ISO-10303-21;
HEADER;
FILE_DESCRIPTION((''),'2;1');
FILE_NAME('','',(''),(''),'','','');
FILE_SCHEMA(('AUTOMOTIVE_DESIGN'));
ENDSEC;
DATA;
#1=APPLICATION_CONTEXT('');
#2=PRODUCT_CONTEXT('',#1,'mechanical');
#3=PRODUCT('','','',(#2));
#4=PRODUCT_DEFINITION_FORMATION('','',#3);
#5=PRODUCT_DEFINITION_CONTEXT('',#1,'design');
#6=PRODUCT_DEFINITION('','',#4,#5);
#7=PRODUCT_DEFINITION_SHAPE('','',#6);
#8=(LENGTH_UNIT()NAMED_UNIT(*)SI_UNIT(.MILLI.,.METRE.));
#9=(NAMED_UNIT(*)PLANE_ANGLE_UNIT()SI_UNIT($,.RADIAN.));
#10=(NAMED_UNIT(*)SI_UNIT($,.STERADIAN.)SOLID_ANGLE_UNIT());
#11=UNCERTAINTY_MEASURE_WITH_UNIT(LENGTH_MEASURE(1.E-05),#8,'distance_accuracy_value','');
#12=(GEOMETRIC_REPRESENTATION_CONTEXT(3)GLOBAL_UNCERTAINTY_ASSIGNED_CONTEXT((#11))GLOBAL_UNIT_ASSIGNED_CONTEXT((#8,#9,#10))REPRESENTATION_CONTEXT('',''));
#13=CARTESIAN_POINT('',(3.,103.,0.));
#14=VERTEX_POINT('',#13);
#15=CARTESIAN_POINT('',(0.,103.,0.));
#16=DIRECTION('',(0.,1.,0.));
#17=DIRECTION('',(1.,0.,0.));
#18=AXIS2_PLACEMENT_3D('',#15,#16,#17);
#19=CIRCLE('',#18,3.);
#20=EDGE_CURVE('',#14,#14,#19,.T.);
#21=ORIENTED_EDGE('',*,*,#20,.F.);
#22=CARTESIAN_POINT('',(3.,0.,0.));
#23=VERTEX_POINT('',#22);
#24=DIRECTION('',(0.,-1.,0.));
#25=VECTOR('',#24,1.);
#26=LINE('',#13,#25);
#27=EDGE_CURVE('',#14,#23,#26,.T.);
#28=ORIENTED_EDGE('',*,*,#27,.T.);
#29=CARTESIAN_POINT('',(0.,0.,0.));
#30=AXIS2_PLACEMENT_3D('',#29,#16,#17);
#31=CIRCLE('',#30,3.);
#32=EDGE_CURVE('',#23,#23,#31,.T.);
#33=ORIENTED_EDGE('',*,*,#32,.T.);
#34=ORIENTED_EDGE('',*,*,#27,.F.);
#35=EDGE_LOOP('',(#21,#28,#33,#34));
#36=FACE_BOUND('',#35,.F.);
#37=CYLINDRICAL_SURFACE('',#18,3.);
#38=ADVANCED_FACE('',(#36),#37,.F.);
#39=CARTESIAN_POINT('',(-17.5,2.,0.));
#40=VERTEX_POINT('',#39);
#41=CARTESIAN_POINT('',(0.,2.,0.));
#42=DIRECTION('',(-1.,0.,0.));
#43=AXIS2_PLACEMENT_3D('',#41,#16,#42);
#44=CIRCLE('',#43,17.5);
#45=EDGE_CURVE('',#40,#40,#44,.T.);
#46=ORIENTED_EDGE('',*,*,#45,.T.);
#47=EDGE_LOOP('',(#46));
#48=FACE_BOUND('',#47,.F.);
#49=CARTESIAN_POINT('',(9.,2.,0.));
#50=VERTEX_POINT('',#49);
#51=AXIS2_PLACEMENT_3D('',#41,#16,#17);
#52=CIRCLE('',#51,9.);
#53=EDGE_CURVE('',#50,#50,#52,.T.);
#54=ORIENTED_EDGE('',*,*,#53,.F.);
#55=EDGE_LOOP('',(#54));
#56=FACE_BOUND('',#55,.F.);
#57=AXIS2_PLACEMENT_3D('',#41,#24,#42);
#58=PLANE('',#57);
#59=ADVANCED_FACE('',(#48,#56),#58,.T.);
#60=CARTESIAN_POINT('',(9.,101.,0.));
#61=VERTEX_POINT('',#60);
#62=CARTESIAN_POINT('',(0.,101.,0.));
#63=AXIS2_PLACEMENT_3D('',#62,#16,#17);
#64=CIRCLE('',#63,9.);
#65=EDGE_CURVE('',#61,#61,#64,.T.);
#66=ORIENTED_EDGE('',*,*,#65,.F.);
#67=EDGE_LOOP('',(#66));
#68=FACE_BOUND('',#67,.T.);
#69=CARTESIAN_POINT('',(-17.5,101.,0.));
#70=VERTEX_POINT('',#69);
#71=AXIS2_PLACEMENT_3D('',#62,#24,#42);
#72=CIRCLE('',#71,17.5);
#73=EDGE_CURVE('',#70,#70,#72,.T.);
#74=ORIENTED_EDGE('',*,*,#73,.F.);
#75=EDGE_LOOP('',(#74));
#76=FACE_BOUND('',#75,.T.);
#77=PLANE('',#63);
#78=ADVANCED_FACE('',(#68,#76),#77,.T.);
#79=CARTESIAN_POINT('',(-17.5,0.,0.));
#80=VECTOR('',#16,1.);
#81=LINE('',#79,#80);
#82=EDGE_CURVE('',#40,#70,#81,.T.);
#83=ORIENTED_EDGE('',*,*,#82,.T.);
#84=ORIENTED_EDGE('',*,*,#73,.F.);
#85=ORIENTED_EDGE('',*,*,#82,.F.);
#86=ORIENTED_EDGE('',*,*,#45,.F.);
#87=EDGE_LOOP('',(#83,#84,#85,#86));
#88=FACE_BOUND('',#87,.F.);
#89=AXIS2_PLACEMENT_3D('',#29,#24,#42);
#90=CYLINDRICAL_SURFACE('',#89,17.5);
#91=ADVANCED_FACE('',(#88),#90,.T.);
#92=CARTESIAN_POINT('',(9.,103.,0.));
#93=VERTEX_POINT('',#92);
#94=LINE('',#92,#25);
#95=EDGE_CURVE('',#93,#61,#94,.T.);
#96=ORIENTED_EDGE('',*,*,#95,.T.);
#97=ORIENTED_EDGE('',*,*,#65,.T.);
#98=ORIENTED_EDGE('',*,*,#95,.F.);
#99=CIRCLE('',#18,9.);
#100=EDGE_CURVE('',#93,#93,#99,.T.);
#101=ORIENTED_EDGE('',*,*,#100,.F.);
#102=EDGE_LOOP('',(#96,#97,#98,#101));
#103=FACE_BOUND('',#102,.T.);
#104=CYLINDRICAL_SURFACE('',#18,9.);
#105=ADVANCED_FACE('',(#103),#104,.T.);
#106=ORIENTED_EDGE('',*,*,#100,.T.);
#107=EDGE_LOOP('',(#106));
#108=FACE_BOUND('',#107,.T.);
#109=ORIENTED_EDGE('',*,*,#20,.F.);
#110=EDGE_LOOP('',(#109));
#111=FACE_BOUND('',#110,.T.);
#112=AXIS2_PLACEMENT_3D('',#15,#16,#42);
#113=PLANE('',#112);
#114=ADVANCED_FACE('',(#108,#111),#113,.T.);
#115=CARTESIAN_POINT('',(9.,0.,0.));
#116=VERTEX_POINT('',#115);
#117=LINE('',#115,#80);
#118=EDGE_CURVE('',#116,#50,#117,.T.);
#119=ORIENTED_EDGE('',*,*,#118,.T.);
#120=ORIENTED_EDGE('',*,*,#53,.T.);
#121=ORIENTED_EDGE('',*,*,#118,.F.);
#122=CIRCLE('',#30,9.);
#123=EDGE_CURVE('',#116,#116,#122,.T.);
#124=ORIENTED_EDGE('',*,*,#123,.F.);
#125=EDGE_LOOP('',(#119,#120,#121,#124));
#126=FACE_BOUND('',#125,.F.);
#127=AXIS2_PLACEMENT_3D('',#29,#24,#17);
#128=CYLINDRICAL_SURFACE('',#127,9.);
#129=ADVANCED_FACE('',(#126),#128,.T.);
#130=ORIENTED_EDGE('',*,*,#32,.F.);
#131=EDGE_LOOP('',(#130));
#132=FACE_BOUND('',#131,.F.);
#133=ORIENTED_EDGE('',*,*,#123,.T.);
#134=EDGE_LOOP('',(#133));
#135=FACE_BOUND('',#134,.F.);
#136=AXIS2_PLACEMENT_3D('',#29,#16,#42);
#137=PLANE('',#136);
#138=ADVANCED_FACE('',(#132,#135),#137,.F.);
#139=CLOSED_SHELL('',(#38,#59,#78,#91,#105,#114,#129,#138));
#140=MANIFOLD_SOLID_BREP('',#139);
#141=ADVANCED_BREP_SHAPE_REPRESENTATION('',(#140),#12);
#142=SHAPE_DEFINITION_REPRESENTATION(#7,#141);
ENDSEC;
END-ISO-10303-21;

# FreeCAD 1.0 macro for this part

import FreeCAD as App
import Part
import Sketcher

V = App.Vector
Q = App.Units.Quantity

doc = App.newDocument("Part")
body = doc.addObject("PartDesign::Body", "Body")

# Sketch on XZ plane
sketch1 = body.newObject("Sketcher::SketchObject", "Sketch")
sketch1.AttachmentSupport = (doc.getObject("XZ_Plane"), [""])
sketch1.MapMode = "FlatFace"
sketch1.addGeometry(Part.Circle(V(0, 0, 0), V(0, 0, 1), 18), False)
sketch1.addConstraint([
    Sketcher.Constraint("Coincident", 0, 3, -1, 1),
    Sketcher.Constraint("Diameter", 0, Q("35 mm")),
])
pad1 = body.newObject("PartDesign::Pad", "Pad")
pad1.Profile = sketch1
pad1.Length = 103
pad1.Reversed = True

# Sketch on XZ plane
sketch2 = body.newObject("Sketcher::SketchObject", "Sketch001")
sketch2.AttachmentSupport = (doc.getObject("XZ_Plane"), [""])
sketch2.MapMode = "FlatFace"
sketch2.AttachmentOffset = App.Placement(V(0, 0, -103), App.Rotation())
sketch2.addGeometry([
    Part.Circle(V(0, 0, 0), V(0, 0, 1), 18),
    Part.Circle(V(0, 0, 0), V(0, 0, 1), 9),
], False)
sketch2.addConstraint([
    Sketcher.Constraint("Coincident", 0, 3, -1, 1),
    Sketcher.Constraint("Coincident", 1, 3, -1, 1),
    Sketcher.Constraint("Diameter", 1, Q("18 mm")),
    Sketcher.Constraint("Diameter", 0, Q("35 mm")),
])
pocket1 = body.newObject("PartDesign::Pocket", "Pocket")
pocket1.Profile = sketch2
pocket1.Length = 2
pocket1.Reversed = True

# Sketch on XZ plane
sketch3 = body.newObject("Sketcher::SketchObject", "Sketch002")
sketch3.AttachmentSupport = (doc.getObject("XZ_Plane"), [""])
sketch3.MapMode = "FlatFace"
sketch3.AttachmentOffset = App.Placement(V(0, 0, -103), App.Rotation())
sketch3.addGeometry(Part.Circle(V(0, 0, 0), V(0, 0, 1), 3), False)
sketch3.addConstraint([
    Sketcher.Constraint("Coincident", 0, 3, -1, 1),
    Sketcher.Constraint("Diameter", 0, Q("6 mm")),
])
pocket2 = body.newObject("PartDesign::Pocket", "Pocket001")
pocket2.Profile = sketch3
pocket2.Type = "ThroughAll"
pocket2.Reversed = True
doc.recompute()

datumplane = body.newObject("PartDesign::Plane", "DatumPlane")
datumplane.AttachmentSupport = (doc.getObject("XZ_Plane"), [""])
datumplane.MapMode = "FlatFace"
datumplane.AttachmentOffset = App.Placement(V(0, 0, -51.5), App.Rotation())
mirrored = body.newObject("PartDesign::Mirrored", "Mirrored")
mirrored.Originals = [pocket1]
mirrored.MirrorPlane = (datumplane, [""])
body.Tip = mirrored

doc.recompute()
